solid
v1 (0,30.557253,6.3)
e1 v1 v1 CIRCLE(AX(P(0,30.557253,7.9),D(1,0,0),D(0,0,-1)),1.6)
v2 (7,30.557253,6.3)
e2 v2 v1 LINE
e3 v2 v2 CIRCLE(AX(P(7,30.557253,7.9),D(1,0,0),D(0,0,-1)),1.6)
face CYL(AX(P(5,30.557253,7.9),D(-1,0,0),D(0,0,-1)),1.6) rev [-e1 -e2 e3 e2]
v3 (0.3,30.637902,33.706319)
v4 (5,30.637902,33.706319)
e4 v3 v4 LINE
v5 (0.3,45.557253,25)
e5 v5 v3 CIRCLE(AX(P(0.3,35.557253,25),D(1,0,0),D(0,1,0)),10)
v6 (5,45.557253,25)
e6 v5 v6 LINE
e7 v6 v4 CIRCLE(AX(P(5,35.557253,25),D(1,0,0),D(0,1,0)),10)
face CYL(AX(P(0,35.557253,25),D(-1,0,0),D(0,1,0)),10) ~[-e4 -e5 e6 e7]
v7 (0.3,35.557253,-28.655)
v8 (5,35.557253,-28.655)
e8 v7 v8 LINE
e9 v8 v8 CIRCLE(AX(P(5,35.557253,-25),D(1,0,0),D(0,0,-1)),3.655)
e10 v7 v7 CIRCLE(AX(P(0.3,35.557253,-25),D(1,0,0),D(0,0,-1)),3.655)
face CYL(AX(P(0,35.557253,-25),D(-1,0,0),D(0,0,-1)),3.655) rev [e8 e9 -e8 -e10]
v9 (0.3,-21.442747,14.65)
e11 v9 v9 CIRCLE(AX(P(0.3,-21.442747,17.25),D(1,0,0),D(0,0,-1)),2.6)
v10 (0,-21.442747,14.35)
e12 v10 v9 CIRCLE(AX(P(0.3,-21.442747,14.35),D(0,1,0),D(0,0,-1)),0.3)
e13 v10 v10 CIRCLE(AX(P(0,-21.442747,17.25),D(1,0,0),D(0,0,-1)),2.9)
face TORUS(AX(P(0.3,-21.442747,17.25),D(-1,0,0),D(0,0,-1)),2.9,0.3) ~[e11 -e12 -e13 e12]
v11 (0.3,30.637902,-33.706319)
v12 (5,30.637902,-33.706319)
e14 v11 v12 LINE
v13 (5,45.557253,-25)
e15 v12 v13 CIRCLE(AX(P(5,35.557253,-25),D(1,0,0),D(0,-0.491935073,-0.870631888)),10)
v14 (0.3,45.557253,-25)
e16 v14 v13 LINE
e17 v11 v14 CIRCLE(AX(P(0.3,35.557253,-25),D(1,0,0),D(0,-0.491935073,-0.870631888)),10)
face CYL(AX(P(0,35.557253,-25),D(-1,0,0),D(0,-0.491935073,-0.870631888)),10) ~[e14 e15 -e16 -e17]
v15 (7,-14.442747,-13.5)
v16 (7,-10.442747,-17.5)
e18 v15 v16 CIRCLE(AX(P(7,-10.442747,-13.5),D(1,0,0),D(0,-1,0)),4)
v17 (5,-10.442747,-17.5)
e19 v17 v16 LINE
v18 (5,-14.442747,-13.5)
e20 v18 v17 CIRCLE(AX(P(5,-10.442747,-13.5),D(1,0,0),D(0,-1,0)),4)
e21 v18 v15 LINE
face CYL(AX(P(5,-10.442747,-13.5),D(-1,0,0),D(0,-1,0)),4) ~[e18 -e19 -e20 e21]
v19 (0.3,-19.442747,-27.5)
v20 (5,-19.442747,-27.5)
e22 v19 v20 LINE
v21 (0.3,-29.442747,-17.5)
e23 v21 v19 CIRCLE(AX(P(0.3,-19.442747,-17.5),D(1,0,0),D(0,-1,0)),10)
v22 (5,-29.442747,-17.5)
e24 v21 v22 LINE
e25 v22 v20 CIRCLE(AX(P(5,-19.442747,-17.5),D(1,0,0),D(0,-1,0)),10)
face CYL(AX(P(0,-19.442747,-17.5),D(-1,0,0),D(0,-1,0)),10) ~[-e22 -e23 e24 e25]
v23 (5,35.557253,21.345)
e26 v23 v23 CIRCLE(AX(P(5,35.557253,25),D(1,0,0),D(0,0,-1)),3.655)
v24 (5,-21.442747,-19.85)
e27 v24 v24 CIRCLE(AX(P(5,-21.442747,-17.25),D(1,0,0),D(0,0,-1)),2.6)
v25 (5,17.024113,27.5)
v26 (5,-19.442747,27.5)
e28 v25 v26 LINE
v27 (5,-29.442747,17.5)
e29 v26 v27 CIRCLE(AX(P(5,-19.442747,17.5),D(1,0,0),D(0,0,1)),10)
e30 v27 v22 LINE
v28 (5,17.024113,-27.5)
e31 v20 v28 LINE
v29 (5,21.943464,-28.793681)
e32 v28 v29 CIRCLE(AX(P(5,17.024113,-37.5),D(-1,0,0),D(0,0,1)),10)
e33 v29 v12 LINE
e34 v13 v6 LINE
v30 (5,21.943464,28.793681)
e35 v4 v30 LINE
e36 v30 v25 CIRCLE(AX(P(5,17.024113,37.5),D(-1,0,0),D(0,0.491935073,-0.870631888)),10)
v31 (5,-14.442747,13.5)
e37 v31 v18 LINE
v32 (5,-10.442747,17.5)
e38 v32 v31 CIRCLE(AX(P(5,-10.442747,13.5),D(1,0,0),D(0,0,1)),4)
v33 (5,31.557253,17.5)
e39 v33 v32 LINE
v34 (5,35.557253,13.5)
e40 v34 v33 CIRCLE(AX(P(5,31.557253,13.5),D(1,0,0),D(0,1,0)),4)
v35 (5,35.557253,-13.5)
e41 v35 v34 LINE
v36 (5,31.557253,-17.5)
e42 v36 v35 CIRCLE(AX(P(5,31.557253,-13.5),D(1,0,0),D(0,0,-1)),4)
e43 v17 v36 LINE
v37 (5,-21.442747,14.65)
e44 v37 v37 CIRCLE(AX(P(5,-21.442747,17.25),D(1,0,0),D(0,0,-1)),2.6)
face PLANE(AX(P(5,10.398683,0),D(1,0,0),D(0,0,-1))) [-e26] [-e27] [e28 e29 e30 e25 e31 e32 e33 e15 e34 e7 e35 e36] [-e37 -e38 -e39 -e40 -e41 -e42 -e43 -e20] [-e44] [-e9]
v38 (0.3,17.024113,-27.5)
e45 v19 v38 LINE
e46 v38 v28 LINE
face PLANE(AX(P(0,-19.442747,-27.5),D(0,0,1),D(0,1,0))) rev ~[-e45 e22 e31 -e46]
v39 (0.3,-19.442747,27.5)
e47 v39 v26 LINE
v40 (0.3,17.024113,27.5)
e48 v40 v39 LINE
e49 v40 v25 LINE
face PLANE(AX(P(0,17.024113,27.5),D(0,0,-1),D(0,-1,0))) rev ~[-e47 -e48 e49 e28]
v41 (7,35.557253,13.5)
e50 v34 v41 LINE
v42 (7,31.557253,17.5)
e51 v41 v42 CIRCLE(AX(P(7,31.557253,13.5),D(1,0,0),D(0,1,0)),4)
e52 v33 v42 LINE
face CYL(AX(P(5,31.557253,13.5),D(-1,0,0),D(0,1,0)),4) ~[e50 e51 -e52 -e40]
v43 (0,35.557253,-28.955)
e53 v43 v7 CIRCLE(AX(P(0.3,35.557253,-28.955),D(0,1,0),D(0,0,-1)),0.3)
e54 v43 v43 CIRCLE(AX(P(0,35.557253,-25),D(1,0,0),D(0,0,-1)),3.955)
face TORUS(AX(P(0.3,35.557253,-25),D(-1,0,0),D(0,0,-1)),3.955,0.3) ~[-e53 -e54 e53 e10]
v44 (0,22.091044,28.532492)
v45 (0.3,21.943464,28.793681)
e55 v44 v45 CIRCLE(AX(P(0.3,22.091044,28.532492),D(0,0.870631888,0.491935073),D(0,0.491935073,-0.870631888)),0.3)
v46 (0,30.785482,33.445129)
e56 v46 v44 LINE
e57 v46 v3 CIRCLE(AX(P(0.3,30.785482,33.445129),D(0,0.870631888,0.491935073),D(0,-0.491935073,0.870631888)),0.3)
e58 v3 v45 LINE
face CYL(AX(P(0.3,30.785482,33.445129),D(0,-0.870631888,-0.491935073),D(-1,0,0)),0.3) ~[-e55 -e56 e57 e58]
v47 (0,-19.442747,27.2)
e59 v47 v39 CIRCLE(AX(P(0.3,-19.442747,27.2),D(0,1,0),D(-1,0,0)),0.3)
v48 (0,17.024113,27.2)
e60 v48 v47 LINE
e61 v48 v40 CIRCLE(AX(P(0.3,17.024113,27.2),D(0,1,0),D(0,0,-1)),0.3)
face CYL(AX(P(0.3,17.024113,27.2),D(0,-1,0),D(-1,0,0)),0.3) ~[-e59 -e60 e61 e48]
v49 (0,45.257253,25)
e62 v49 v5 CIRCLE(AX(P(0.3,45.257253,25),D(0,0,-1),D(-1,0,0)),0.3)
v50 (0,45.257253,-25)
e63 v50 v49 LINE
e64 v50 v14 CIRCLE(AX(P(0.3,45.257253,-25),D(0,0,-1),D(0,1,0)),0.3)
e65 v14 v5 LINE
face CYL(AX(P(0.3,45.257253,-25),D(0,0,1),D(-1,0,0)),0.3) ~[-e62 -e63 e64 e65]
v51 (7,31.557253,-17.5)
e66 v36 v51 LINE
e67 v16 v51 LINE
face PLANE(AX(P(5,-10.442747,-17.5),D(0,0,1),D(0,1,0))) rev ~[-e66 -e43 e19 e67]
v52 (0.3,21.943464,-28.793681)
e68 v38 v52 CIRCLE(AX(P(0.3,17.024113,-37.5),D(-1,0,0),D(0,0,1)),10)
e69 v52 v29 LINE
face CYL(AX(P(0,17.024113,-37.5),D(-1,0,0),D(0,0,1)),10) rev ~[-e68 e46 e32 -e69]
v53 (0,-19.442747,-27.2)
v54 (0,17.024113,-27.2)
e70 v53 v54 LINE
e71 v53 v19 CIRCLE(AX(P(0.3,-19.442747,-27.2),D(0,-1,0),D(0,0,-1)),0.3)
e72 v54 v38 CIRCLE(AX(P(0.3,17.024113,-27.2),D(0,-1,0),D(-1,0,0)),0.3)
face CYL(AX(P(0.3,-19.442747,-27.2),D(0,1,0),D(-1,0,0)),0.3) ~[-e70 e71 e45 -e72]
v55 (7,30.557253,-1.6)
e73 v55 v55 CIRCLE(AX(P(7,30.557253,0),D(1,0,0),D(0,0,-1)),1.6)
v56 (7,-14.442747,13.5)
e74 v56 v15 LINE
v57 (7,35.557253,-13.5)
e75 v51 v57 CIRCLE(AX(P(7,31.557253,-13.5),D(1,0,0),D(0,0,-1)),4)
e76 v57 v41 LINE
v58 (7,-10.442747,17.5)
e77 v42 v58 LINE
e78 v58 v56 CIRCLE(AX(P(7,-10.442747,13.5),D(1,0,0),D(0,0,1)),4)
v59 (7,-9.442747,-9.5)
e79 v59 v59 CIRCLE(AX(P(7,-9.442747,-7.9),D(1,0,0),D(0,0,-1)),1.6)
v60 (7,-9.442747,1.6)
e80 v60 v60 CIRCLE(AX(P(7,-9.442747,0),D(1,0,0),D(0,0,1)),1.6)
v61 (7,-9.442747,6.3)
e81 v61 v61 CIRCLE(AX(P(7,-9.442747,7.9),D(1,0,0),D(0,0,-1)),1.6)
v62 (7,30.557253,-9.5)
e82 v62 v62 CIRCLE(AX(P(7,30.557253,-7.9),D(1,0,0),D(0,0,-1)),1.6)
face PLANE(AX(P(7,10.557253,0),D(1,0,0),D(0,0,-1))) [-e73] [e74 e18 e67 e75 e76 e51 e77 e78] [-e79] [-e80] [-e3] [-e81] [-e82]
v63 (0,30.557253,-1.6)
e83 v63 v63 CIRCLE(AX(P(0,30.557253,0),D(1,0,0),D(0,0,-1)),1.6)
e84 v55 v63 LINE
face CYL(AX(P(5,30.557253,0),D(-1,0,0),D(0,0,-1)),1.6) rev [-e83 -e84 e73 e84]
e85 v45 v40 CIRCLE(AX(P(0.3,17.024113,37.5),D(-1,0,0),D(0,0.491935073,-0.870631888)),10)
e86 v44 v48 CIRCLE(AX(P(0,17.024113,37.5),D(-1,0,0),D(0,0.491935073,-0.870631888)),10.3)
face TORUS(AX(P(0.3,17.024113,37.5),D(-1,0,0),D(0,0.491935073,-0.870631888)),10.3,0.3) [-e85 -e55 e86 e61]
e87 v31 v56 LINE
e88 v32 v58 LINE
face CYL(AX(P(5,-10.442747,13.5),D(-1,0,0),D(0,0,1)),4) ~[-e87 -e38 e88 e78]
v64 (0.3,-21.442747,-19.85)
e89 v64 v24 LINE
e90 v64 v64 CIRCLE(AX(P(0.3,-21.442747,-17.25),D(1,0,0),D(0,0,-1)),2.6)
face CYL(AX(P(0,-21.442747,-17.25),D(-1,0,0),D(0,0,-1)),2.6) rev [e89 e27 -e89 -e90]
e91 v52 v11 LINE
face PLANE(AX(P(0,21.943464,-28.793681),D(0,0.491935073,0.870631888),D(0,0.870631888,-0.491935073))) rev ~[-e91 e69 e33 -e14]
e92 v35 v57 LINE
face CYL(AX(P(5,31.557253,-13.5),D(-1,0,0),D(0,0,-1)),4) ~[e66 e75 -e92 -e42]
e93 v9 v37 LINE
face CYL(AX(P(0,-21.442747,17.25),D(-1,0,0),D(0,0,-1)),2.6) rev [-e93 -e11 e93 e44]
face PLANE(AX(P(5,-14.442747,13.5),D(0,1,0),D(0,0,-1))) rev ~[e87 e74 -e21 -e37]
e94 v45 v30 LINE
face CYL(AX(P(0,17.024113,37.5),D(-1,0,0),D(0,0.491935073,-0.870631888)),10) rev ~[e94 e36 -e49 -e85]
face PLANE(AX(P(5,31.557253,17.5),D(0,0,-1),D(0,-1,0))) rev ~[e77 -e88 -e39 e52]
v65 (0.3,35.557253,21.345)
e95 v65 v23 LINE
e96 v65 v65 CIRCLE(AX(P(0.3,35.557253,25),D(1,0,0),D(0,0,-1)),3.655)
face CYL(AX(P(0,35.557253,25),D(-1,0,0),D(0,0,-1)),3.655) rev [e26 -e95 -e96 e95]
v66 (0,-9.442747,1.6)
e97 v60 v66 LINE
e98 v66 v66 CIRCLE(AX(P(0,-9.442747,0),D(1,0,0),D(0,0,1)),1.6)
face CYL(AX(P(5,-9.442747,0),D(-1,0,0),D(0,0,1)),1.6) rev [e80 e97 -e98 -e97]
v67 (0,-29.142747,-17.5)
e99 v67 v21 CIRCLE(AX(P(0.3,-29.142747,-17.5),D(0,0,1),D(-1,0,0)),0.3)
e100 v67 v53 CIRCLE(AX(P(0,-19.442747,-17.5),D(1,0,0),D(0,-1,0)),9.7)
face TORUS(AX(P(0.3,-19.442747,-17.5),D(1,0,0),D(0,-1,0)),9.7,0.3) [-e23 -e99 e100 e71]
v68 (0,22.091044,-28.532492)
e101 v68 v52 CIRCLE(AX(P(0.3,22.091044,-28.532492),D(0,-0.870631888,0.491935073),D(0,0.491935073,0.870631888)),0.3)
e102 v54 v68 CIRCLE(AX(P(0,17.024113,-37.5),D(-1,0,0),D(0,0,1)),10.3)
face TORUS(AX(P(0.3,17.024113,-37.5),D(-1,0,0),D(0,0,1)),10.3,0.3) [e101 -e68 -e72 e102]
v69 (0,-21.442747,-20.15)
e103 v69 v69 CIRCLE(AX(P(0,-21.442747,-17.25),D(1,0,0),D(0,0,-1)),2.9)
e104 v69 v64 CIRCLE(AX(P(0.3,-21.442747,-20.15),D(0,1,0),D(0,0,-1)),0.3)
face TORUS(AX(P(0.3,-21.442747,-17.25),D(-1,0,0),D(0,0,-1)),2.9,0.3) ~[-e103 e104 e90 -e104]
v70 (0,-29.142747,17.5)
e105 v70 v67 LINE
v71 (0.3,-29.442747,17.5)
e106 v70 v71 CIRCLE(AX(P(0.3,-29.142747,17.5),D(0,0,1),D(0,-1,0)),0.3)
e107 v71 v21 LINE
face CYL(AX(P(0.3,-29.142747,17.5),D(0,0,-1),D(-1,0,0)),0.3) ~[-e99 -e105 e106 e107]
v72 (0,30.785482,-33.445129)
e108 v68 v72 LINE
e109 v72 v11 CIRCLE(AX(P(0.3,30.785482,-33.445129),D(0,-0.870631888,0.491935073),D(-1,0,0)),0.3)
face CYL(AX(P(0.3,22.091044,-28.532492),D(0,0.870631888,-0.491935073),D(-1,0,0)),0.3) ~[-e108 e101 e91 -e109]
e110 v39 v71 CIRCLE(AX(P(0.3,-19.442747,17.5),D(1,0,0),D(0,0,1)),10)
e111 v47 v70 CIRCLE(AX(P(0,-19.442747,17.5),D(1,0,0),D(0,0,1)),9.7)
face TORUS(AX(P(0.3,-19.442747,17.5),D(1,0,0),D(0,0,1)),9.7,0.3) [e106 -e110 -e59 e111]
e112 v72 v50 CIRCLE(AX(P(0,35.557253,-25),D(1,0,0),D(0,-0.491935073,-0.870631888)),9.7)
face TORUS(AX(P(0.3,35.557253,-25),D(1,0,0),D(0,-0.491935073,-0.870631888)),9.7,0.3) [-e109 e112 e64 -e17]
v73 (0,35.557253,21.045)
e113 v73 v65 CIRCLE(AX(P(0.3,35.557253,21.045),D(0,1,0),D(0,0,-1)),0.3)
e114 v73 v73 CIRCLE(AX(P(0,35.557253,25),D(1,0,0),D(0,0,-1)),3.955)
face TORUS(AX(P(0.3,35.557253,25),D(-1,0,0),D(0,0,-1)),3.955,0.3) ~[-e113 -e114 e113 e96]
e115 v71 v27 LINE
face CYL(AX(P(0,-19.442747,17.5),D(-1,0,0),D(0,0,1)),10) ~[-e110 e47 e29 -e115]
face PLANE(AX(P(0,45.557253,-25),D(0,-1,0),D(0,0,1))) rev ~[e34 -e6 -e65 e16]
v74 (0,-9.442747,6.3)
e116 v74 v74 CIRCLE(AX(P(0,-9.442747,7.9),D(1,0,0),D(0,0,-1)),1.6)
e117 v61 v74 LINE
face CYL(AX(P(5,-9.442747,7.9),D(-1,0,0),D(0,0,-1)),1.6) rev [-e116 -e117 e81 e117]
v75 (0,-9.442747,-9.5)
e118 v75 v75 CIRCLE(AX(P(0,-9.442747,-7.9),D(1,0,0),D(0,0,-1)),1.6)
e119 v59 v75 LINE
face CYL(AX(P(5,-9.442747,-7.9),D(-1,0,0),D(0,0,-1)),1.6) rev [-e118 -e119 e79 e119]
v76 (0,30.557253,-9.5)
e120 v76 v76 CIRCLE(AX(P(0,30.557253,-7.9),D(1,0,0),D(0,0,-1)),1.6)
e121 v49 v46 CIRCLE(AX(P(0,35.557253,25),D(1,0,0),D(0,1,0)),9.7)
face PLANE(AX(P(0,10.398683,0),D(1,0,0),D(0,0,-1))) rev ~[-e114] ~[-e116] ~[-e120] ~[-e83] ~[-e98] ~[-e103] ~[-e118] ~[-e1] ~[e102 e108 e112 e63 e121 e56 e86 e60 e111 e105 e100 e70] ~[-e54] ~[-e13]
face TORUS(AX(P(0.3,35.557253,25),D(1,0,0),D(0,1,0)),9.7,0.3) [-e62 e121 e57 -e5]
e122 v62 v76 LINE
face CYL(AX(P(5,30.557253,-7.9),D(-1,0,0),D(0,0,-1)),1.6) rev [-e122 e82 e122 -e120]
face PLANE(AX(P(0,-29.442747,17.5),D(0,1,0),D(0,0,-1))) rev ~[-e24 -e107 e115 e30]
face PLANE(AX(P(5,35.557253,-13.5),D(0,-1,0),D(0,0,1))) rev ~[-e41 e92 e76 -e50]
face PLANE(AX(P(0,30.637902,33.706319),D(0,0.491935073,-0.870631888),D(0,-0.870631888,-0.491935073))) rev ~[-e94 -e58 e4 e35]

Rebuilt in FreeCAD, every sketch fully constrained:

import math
import FreeCAD as App
import Part
import Sketcher

V = App.Vector
Q = App.Units.Quantity


def edges_at(feature, points):
    """Names of the edges that pass closest to the given points."""
    edges = feature.Shape.Edges
    near = lambda p: min(range(len(edges)), key=lambda i: edges[i].distToShape(Part.Vertex(*p))[0])
    return sorted({f"Edge{near(p) + 1}" for p in points})

doc = App.newDocument("Part")
body = doc.addObject("PartDesign::Body", "Body")

# Sketch on YZ plane
sketch1 = body.newObject("Sketcher::SketchObject", "Sketch")
sketch1.AttachmentSupport = (doc.getObject("YZ_Plane"), [""])
sketch1.MapMode = "FlatFace"
sketch1.addGeometry([
    Part.ArcOfCircle(Part.Circle(V(-19.4, 17.5, 0), V(0, 0, 1), 10), math.radians(90), math.radians(180)),  # 0
    Part.LineSegment(V(-29.4, 17.5, 0), V(-29.4, -17.5, 0)),  # 1
    Part.ArcOfCircle(Part.Circle(V(-19.4, -17.5, 0), V(0, 0, 1), 10), math.radians(180), math.radians(270)),  # 2
    Part.LineSegment(V(-19.4, -27.5, 0), V(17, -27.5, 0)),  # 3
    Part.ArcOfCircle(Part.Circle(V(17, -37.5, 0), V(0, 0, 1), 10), math.radians(61), math.radians(90)),  # 4
    Part.LineSegment(V(21.9, -28.8, 0), V(30.6, -33.7, 0)),  # 5
    Part.ArcOfCircle(Part.Circle(V(35.6, -25, 0), V(0, 0, 1), 10), math.radians(-119), math.radians(0)),  # 6
    Part.LineSegment(V(45.6, -25, 0), V(45.6, 25, 0)),  # 7
    Part.ArcOfCircle(Part.Circle(V(35.6, 25, 0), V(0, 0, 1), 10), math.radians(0), math.radians(119)),  # 8
    Part.LineSegment(V(30.6, 33.7, 0), V(21.9, 28.8, 0)),  # 9
    Part.ArcOfCircle(Part.Circle(V(17, 37.5, 0), V(0, 0, 1), 10), math.radians(-90), math.radians(-61)),  # 10
    Part.LineSegment(V(17, 27.5, 0), V(-19.4, 27.5, 0)),  # 11
    Part.Circle(V(-21.4, 17.2, 0), V(0, 0, 1), 2.6),  # 12
    Part.Circle(V(-9.4, 7.9, 0), V(0, 0, 1), 1.6),  # 13
    Part.Circle(V(-9.4, 0, 0), V(0, 0, 1), 1.6),  # 14
    Part.Circle(V(-9.4, -7.9, 0), V(0, 0, 1), 1.6),  # 15
    Part.Circle(V(-21.4, -17.2, 0), V(0, 0, 1), 2.6),  # 16
    Part.Circle(V(35.6, 25, 0), V(0, 0, 1), 3.7),  # 17
    Part.Circle(V(30.6, 7.9, 0), V(0, 0, 1), 1.6),  # 18
    Part.Circle(V(30.6, 0, 0), V(0, 0, 1), 1.6),  # 19
    Part.Circle(V(30.6, -7.9, 0), V(0, 0, 1), 1.6),  # 20
    Part.Circle(V(35.6, -25, 0), V(0, 0, 1), 3.7),  # 21
], False)
sketch1.addConstraint([
    Sketcher.Constraint("Tangent", 0, 2, 1, 1),
    Sketcher.Constraint("Tangent", 1, 2, 2, 1),
    Sketcher.Constraint("Tangent", 2, 2, 3, 1),
    Sketcher.Constraint("Tangent", 3, 2, 4, 2),
    Sketcher.Constraint("Tangent", 4, 1, 5, 1),
    Sketcher.Constraint("Tangent", 5, 2, 6, 1),
    Sketcher.Constraint("Tangent", 6, 2, 7, 1),
    Sketcher.Constraint("Tangent", 7, 2, 8, 1),
    Sketcher.Constraint("Tangent", 8, 2, 9, 1),
    Sketcher.Constraint("Tangent", 9, 2, 10, 2),
    Sketcher.Constraint("Tangent", 10, 1, 11, 1),
    Sketcher.Constraint("Tangent", 11, 2, 0, 1),
    Sketcher.Constraint("Vertical", 1),
    Sketcher.Constraint("Horizontal", 3),
    Sketcher.Constraint("Vertical", 7),
    Sketcher.Constraint("Horizontal", 11),
    Sketcher.Constraint("Coincident", 17, 3, 8, 3),
    Sketcher.Constraint("Coincident", 21, 3, 6, 3),
    Sketcher.Constraint("Equal", 0, 2),
    Sketcher.Constraint("Equal", 2, 4),
    Sketcher.Constraint("Equal", 4, 6),
    Sketcher.Constraint("Equal", 6, 8),
    Sketcher.Constraint("Equal", 8, 10),
    Sketcher.Constraint("Equal", 13, 14),
    Sketcher.Constraint("Equal", 14, 15),
    Sketcher.Constraint("Equal", 12, 16),
    Sketcher.Constraint("Equal", 15, 18),
    Sketcher.Constraint("Equal", 18, 19),
    Sketcher.Constraint("Equal", 19, 20),
    Sketcher.Constraint("Equal", 17, 21),
    Sketcher.Constraint("Symmetric", 4, 3, 10, 3, -1),
    Sketcher.Constraint("Symmetric", 13, 3, 15, 3, -1),
    Sketcher.Constraint("Symmetric", 12, 3, 16, 3, -1),
    Sketcher.Constraint("Symmetric", 18, 3, 20, 3, -1),
    Sketcher.Constraint("PointOnObject", 14, 3, -1),
    Sketcher.Constraint("PointOnObject", 19, 3, -1),
    Sketcher.Constraint("Horizontal", 13, 3, 18, 3),
    Sketcher.Constraint("Vertical", 13, 3, 14, 3),
    Sketcher.Constraint("Vertical", 18, 3, 19, 3),
    Sketcher.Constraint("Vertical", 5, 2, 8, 2),
    Sketcher.Constraint("Radius", 0, Q("10 mm")),
    Sketcher.Constraint("Diameter", 12, Q("5.2 mm")),
    Sketcher.Constraint("Diameter", 13, Q("3.2 mm")),
    Sketcher.Constraint("Diameter", 17, Q("7.31 mm")),
    Sketcher.Constraint("DistanceY", 1, 2, 1, 1, Q("35 mm")),
    Sketcher.Constraint("DistanceY", 7, 1, 7, 2, Q("50 mm")),
    Sketcher.Constraint("DistanceX", 2, 3, 6, 3, Q("55 mm")),
    Sketcher.Constraint("DistanceX", 12, 3, 0, 3, Q("2 mm")),
    Sketcher.Constraint("DistanceX", 0, 3, 13, 3, Q("10 mm")),
    Sketcher.Constraint("DistanceX", 18, 3, 8, 3, Q("5 mm")),
    Sketcher.Constraint("DistanceY", -1, 1, 13, 3, Q("7.9 mm")),
    Sketcher.Constraint("DistanceY", 16, 3, 12, 3, Q("34.5 mm")),
    Sketcher.Constraint("DistanceX", 3, 1, 3, 2, Q("36.46686 mm")),
    Sketcher.Constraint("DistanceX", -1, 1, 5, 2, Q("30.637902 mm")),
])
pad1 = body.newObject("PartDesign::Pad", "Pad")
pad1.Profile = sketch1
pad1.Length = 5

# Sketch on YZ plane
sketch2 = body.newObject("Sketcher::SketchObject", "Sketch001")
sketch2.AttachmentSupport = (doc.getObject("YZ_Plane"), [""])
sketch2.MapMode = "FlatFace"
sketch2.AttachmentOffset = App.Placement(V(0, 0, 5), App.Rotation())
sketch2.addGeometry([
    Part.LineSegment(V(-14.4, 13.5, 0), V(-14.4, -13.5, 0)),  # 0
    Part.ArcOfCircle(Part.Circle(V(-10.4, -13.5, 0), V(0, 0, 1), 4), math.radians(180), math.radians(270)),  # 1
    Part.LineSegment(V(-10.4, -17.5, 0), V(31.6, -17.5, 0)),  # 2
    Part.ArcOfCircle(Part.Circle(V(31.6, -13.5, 0), V(0, 0, 1), 4), math.radians(-90), math.radians(0)),  # 3
    Part.LineSegment(V(35.6, -13.5, 0), V(35.6, 13.5, 0)),  # 4
    Part.ArcOfCircle(Part.Circle(V(31.6, 13.5, 0), V(0, 0, 1), 4), math.radians(0), math.radians(90)),  # 5
    Part.LineSegment(V(31.6, 17.5, 0), V(-10.4, 17.5, 0)),  # 6
    Part.ArcOfCircle(Part.Circle(V(-10.4, 13.5, 0), V(0, 0, 1), 4), math.radians(90), math.radians(180)),  # 7
    Part.Circle(V(-9.4, 7.9, 0), V(0, 0, 1), 1.6),  # 8
    Part.Circle(V(-9.4, 0, 0), V(0, 0, 1), 1.6),  # 9
    Part.Circle(V(-9.4, -7.9, 0), V(0, 0, 1), 1.6),  # 10
    Part.Circle(V(30.6, 7.9, 0), V(0, 0, 1), 1.6),  # 11
    Part.Circle(V(30.6, 0, 0), V(0, 0, 1), 1.6),  # 12
    Part.Circle(V(30.6, -7.9, 0), V(0, 0, 1), 1.6),  # 13
], False)
sketch2.addConstraint([
    Sketcher.Constraint("Tangent", 0, 2, 1, 1),
    Sketcher.Constraint("Tangent", 1, 2, 2, 1),
    Sketcher.Constraint("Tangent", 2, 2, 3, 1),
    Sketcher.Constraint("Tangent", 3, 2, 4, 1),
    Sketcher.Constraint("Tangent", 4, 2, 5, 1),
    Sketcher.Constraint("Tangent", 5, 2, 6, 1),
    Sketcher.Constraint("Tangent", 6, 2, 7, 1),
    Sketcher.Constraint("Tangent", 7, 2, 0, 1),
    Sketcher.Constraint("Vertical", 0),
    Sketcher.Constraint("Horizontal", 2),
    Sketcher.Constraint("Vertical", 4),
    Sketcher.Constraint("Horizontal", 6),
    Sketcher.Constraint("Equal", 1, 3),
    Sketcher.Constraint("Equal", 3, 5),
    Sketcher.Constraint("Equal", 5, 7),
    Sketcher.Constraint("Equal", 8, 9),
    Sketcher.Constraint("Equal", 9, 10),
    Sketcher.Constraint("Equal", 10, 11),
    Sketcher.Constraint("Equal", 11, 12),
    Sketcher.Constraint("Equal", 12, 13),
    Sketcher.Constraint("Symmetric", 8, 3, 10, 3, -1),
    Sketcher.Constraint("Symmetric", 11, 3, 13, 3, -1),
    Sketcher.Constraint("PointOnObject", 9, 3, -1),
    Sketcher.Constraint("PointOnObject", 12, 3, -1),
    Sketcher.Constraint("Horizontal", 8, 3, 11, 3),
    Sketcher.Constraint("Vertical", 8, 3, 9, 3),
    Sketcher.Constraint("Vertical", 11, 3, 12, 3),
    Sketcher.Constraint("Radius", 1, Q("4 mm")),
    Sketcher.Constraint("Diameter", 8, Q("3.2 mm")),
    Sketcher.Constraint("DistanceX", 2, 1, 2, 2, Q("42 mm")),
    Sketcher.Constraint("DistanceY", 0, 2, 0, 1, Q("27 mm")),
    Sketcher.Constraint("DistanceX", 7, 3, 8, 3, Q("1 mm")),
    Sketcher.Constraint("DistanceX", 11, 3, 5, 3, Q("1 mm")),
    Sketcher.Constraint("DistanceY", 1, 3, -1, 1, Q("13.5 mm")),
    Sketcher.Constraint("DistanceY", -1, 1, 8, 3, Q("7.9 mm")),
    Sketcher.Constraint("DistanceX", 1, 3, -1, 1, Q("10.442747 mm")),
])
pad2 = body.newObject("PartDesign::Pad", "Pad001")
pad2.Profile = sketch2
pad2.Length = 2
doc.recompute()

fillet = body.newObject("PartDesign::Fillet", "Fillet")
fillet.Base = (pad2, edges_at(pad2, [
    (0, 19.567, 27.829),
    (0, 26.291, 31.25),
    (0, 40.597, 33.637),
    (0, 45.557, 0),
    (0, 40.597, -33.637),
    (0, 26.291, -31.25),
    (0, 19.567, -27.829),
    (0, -1.209, -27.5),
    (0, -26.514, -24.571),
    (0, -29.443, 0),
    (0, -26.514, 24.571),
    (0, -1.209, 27.5),
    (0, 35.557, -21.345),
    (0, 35.557, 28.655),
    (0, -21.443, 19.85),
    (0, -21.443, -14.65),
]))
fillet.Radius = 0.3

doc.recompute()
